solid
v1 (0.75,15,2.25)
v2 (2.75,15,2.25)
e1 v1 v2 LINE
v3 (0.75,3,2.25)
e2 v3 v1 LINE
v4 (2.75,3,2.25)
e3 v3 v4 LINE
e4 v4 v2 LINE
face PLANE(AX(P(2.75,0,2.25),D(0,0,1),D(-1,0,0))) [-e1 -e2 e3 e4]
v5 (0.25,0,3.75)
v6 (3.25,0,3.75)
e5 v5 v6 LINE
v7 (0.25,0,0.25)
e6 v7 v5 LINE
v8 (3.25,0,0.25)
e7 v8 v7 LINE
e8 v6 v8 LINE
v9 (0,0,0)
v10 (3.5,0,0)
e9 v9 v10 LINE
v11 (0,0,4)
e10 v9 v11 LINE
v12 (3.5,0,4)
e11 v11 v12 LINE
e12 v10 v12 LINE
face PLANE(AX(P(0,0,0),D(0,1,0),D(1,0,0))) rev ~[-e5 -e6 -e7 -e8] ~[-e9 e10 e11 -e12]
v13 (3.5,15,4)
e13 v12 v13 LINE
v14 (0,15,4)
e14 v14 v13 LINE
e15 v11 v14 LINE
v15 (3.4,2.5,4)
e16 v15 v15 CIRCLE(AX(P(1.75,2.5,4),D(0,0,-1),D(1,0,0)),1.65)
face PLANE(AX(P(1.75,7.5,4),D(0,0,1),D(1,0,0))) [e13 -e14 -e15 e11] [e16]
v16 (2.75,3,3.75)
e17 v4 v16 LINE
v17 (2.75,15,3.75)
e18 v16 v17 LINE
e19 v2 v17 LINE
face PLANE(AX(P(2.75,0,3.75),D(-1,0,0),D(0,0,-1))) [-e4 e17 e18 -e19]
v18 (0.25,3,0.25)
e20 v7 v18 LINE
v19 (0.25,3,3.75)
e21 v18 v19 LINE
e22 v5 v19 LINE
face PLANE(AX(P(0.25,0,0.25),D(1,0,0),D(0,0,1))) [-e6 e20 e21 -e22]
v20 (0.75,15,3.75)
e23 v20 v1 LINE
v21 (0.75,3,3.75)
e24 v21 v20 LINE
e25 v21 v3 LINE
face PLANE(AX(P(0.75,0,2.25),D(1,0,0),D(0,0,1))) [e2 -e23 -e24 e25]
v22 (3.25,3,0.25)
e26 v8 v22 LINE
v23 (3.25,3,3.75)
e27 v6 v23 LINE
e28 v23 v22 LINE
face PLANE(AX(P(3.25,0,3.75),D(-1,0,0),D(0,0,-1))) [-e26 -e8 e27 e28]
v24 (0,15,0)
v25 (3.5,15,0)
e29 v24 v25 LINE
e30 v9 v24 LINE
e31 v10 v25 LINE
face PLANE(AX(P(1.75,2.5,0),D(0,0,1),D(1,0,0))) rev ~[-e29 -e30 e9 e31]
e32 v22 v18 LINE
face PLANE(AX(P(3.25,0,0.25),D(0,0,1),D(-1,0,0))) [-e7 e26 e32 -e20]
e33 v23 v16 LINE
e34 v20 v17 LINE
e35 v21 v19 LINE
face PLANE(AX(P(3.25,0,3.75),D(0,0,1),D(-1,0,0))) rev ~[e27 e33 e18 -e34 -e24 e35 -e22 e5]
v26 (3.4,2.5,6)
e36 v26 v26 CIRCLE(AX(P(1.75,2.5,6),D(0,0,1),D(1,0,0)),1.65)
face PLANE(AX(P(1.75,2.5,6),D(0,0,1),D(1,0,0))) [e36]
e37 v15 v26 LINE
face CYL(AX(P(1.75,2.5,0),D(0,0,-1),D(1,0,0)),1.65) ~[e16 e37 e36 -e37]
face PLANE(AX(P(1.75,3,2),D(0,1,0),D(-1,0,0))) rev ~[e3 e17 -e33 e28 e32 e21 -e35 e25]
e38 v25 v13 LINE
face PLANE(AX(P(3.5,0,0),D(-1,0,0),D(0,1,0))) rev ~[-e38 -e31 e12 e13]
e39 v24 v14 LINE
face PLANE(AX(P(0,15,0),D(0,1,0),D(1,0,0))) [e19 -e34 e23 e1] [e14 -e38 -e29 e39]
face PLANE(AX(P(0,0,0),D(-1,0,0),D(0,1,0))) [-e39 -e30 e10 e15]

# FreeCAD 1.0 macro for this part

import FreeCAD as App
import Part
import Sketcher

V = App.Vector

doc = App.newDocument("Part")
params = doc.addObject("Spreadsheet::Sheet", "Params")
for row, (alias, value) in enumerate([
    ("sketch1_height", "15 mm"),
    ("sketch1_width", "3.5 mm"),
    ("pad1_length", "4 mm"),
    ("sketch2_diameter", "3.3 mm"),
    ("pad2_length", "6 mm"),
    ("sketch3_width", "3 mm"),
    ("sketch3_height", "3.5 mm"),
    ("pocket1_length", "3 mm"),
    ("sketch4_width", "2 mm"),
    ("sketch4_height", "1.5 mm"),
], start=1):
    params.set(f"A{row}", alias)
    params.set(f"B{row}", "=" + value)
    params.setAlias(f"B{row}", alias)

body = doc.addObject("PartDesign::Body", "Body")

sketch1 = body.newObject("Sketcher::SketchObject", "Sketch")
sketch1.AttachmentSupport = (doc.getObject("XY_Plane"), [""])
sketch1.MapMode = "FlatFace"
sketch1.addGeometry([
    Part.LineSegment(V(0, 15, 0), V(0, 0, 0)),
    Part.LineSegment(V(0, 0, 0), V(3.5, 0, 0)),
    Part.LineSegment(V(3.5, 0, 0), V(3.5, 15, 0)),
    Part.LineSegment(V(3.5, 15, 0), V(0, 15, 0)),
], False)
sketch1.addConstraint([
    Sketcher.Constraint("Coincident", 0, 2, 1, 1),
    Sketcher.Constraint("Coincident", 1, 2, 2, 1),
    Sketcher.Constraint("Coincident", 2, 2, 3, 1),
    Sketcher.Constraint("Coincident", 3, 2, 0, 1),
    Sketcher.Constraint("Vertical", 0),
    Sketcher.Constraint("Horizontal", 1),
    Sketcher.Constraint("Vertical", 2),
    Sketcher.Constraint("Horizontal", 3),
    Sketcher.Constraint("Coincident", 0, 2, -1, 1),
    Sketcher.Constraint("DistanceY", 0, 2, 0, 1, 15.0),
    Sketcher.Constraint("DistanceX", 1, 1, 1, 2, 3.5),
])
sketch1.setExpression("Constraints[9]", "Params.sketch1_height")
sketch1.setExpression("Constraints[10]", "Params.sketch1_width")
pad1 = body.newObject("PartDesign::Pad", "Pad")
pad1.Profile = sketch1
pad1.setExpression("Length", "Params.pad1_length")

sketch2 = body.newObject("Sketcher::SketchObject", "Sketch001")
sketch2.AttachmentSupport = (doc.getObject("XY_Plane"), [""])
sketch2.MapMode = "FlatFace"
sketch2.addGeometry(Part.Circle(V(1.8, 2.5, 0), V(0, 0, 1), 1.6), False)
sketch2.addConstraint([
    Sketcher.Constraint("Diameter", 0, 3.3),
    Sketcher.Constraint("DistanceY", -1, 1, 0, 3, 2.5),
    Sketcher.Constraint("DistanceX", -1, 1, 0, 3, 1.75),
])
sketch2.setExpression("Constraints[0]", "Params.sketch2_diameter")
pad2 = body.newObject("PartDesign::Pad", "Pad001")
pad2.Profile = sketch2
pad2.setExpression("Length", "Params.pad2_length")

sketch3 = body.newObject("Sketcher::SketchObject", "Sketch002")
sketch3.AttachmentSupport = (doc.getObject("XZ_Plane"), [""])
sketch3.MapMode = "FlatFace"
sketch3.addGeometry([
    Part.LineSegment(V(3.2, 0.2, 0), V(3.2, 3.8, 0)),
    Part.LineSegment(V(3.2, 3.8, 0), V(0.2, 3.8, 0)),
    Part.LineSegment(V(0.2, 3.8, 0), V(0.2, 0.2, 0)),
    Part.LineSegment(V(0.2, 0.2, 0), V(3.2, 0.2, 0)),
], False)
sketch3.addConstraint([
    Sketcher.Constraint("Coincident", 0, 2, 1, 1),
    Sketcher.Constraint("Coincident", 1, 2, 2, 1),
    Sketcher.Constraint("Coincident", 2, 2, 3, 1),
    Sketcher.Constraint("Coincident", 3, 2, 0, 1),
    Sketcher.Constraint("Vertical", 0),
    Sketcher.Constraint("Horizontal", 1),
    Sketcher.Constraint("Vertical", 2),
    Sketcher.Constraint("Horizontal", 3),
    Sketcher.Constraint("DistanceX", 1, 2, 1, 1, 3.0),
    Sketcher.Constraint("DistanceY", 0, 1, 0, 2, 3.5),
    Sketcher.Constraint("DistanceX", -1, 1, 0, 2, 3.25),
    Sketcher.Constraint("DistanceY", -1, 1, 0, 2, 3.75),
])
sketch3.setExpression("Constraints[8]", "Params.sketch3_width")
sketch3.setExpression("Constraints[9]", "Params.sketch3_height")
pocket1 = body.newObject("PartDesign::Pocket", "Pocket")
pocket1.Profile = sketch3
pocket1.setExpression("Length", "Params.pocket1_length")

sketch4 = body.newObject("Sketcher::SketchObject", "Sketch003")
sketch4.AttachmentSupport = (doc.getObject("XZ_Plane"), [""])
sketch4.MapMode = "FlatFace"
sketch4.addGeometry([
    Part.LineSegment(V(2.8, 3.8, 0), V(0.8, 3.8, 0)),
    Part.LineSegment(V(0.8, 3.8, 0), V(0.8, 2.2, 0)),
    Part.LineSegment(V(0.8, 2.2, 0), V(2.8, 2.2, 0)),
    Part.LineSegment(V(2.8, 2.2, 0), V(2.8, 3.8, 0)),
], False)
sketch4.addConstraint([
    Sketcher.Constraint("Coincident", 0, 2, 1, 1),
    Sketcher.Constraint("Coincident", 1, 2, 2, 1),
    Sketcher.Constraint("Coincident", 2, 2, 3, 1),
    Sketcher.Constraint("Coincident", 3, 2, 0, 1),
    Sketcher.Constraint("Horizontal", 0),
    Sketcher.Constraint("Vertical", 1),
    Sketcher.Constraint("Horizontal", 2),
    Sketcher.Constraint("Vertical", 3),
    Sketcher.Constraint("DistanceX", 0, 2, 0, 1, 2.0),
    Sketcher.Constraint("DistanceY", 1, 2, 1, 1, 1.5),
    Sketcher.Constraint("DistanceX", -1, 1, 0, 2, 0.75),
    Sketcher.Constraint("DistanceY", -1, 1, 0, 2, 3.75),
])
sketch4.setExpression("Constraints[8]", "Params.sketch4_width")
sketch4.setExpression("Constraints[9]", "Params.sketch4_height")
pocket2 = body.newObject("PartDesign::Pocket", "Pocket001")
pocket2.Profile = sketch4
pocket2.Type = "ThroughAll"

doc.recompute()
